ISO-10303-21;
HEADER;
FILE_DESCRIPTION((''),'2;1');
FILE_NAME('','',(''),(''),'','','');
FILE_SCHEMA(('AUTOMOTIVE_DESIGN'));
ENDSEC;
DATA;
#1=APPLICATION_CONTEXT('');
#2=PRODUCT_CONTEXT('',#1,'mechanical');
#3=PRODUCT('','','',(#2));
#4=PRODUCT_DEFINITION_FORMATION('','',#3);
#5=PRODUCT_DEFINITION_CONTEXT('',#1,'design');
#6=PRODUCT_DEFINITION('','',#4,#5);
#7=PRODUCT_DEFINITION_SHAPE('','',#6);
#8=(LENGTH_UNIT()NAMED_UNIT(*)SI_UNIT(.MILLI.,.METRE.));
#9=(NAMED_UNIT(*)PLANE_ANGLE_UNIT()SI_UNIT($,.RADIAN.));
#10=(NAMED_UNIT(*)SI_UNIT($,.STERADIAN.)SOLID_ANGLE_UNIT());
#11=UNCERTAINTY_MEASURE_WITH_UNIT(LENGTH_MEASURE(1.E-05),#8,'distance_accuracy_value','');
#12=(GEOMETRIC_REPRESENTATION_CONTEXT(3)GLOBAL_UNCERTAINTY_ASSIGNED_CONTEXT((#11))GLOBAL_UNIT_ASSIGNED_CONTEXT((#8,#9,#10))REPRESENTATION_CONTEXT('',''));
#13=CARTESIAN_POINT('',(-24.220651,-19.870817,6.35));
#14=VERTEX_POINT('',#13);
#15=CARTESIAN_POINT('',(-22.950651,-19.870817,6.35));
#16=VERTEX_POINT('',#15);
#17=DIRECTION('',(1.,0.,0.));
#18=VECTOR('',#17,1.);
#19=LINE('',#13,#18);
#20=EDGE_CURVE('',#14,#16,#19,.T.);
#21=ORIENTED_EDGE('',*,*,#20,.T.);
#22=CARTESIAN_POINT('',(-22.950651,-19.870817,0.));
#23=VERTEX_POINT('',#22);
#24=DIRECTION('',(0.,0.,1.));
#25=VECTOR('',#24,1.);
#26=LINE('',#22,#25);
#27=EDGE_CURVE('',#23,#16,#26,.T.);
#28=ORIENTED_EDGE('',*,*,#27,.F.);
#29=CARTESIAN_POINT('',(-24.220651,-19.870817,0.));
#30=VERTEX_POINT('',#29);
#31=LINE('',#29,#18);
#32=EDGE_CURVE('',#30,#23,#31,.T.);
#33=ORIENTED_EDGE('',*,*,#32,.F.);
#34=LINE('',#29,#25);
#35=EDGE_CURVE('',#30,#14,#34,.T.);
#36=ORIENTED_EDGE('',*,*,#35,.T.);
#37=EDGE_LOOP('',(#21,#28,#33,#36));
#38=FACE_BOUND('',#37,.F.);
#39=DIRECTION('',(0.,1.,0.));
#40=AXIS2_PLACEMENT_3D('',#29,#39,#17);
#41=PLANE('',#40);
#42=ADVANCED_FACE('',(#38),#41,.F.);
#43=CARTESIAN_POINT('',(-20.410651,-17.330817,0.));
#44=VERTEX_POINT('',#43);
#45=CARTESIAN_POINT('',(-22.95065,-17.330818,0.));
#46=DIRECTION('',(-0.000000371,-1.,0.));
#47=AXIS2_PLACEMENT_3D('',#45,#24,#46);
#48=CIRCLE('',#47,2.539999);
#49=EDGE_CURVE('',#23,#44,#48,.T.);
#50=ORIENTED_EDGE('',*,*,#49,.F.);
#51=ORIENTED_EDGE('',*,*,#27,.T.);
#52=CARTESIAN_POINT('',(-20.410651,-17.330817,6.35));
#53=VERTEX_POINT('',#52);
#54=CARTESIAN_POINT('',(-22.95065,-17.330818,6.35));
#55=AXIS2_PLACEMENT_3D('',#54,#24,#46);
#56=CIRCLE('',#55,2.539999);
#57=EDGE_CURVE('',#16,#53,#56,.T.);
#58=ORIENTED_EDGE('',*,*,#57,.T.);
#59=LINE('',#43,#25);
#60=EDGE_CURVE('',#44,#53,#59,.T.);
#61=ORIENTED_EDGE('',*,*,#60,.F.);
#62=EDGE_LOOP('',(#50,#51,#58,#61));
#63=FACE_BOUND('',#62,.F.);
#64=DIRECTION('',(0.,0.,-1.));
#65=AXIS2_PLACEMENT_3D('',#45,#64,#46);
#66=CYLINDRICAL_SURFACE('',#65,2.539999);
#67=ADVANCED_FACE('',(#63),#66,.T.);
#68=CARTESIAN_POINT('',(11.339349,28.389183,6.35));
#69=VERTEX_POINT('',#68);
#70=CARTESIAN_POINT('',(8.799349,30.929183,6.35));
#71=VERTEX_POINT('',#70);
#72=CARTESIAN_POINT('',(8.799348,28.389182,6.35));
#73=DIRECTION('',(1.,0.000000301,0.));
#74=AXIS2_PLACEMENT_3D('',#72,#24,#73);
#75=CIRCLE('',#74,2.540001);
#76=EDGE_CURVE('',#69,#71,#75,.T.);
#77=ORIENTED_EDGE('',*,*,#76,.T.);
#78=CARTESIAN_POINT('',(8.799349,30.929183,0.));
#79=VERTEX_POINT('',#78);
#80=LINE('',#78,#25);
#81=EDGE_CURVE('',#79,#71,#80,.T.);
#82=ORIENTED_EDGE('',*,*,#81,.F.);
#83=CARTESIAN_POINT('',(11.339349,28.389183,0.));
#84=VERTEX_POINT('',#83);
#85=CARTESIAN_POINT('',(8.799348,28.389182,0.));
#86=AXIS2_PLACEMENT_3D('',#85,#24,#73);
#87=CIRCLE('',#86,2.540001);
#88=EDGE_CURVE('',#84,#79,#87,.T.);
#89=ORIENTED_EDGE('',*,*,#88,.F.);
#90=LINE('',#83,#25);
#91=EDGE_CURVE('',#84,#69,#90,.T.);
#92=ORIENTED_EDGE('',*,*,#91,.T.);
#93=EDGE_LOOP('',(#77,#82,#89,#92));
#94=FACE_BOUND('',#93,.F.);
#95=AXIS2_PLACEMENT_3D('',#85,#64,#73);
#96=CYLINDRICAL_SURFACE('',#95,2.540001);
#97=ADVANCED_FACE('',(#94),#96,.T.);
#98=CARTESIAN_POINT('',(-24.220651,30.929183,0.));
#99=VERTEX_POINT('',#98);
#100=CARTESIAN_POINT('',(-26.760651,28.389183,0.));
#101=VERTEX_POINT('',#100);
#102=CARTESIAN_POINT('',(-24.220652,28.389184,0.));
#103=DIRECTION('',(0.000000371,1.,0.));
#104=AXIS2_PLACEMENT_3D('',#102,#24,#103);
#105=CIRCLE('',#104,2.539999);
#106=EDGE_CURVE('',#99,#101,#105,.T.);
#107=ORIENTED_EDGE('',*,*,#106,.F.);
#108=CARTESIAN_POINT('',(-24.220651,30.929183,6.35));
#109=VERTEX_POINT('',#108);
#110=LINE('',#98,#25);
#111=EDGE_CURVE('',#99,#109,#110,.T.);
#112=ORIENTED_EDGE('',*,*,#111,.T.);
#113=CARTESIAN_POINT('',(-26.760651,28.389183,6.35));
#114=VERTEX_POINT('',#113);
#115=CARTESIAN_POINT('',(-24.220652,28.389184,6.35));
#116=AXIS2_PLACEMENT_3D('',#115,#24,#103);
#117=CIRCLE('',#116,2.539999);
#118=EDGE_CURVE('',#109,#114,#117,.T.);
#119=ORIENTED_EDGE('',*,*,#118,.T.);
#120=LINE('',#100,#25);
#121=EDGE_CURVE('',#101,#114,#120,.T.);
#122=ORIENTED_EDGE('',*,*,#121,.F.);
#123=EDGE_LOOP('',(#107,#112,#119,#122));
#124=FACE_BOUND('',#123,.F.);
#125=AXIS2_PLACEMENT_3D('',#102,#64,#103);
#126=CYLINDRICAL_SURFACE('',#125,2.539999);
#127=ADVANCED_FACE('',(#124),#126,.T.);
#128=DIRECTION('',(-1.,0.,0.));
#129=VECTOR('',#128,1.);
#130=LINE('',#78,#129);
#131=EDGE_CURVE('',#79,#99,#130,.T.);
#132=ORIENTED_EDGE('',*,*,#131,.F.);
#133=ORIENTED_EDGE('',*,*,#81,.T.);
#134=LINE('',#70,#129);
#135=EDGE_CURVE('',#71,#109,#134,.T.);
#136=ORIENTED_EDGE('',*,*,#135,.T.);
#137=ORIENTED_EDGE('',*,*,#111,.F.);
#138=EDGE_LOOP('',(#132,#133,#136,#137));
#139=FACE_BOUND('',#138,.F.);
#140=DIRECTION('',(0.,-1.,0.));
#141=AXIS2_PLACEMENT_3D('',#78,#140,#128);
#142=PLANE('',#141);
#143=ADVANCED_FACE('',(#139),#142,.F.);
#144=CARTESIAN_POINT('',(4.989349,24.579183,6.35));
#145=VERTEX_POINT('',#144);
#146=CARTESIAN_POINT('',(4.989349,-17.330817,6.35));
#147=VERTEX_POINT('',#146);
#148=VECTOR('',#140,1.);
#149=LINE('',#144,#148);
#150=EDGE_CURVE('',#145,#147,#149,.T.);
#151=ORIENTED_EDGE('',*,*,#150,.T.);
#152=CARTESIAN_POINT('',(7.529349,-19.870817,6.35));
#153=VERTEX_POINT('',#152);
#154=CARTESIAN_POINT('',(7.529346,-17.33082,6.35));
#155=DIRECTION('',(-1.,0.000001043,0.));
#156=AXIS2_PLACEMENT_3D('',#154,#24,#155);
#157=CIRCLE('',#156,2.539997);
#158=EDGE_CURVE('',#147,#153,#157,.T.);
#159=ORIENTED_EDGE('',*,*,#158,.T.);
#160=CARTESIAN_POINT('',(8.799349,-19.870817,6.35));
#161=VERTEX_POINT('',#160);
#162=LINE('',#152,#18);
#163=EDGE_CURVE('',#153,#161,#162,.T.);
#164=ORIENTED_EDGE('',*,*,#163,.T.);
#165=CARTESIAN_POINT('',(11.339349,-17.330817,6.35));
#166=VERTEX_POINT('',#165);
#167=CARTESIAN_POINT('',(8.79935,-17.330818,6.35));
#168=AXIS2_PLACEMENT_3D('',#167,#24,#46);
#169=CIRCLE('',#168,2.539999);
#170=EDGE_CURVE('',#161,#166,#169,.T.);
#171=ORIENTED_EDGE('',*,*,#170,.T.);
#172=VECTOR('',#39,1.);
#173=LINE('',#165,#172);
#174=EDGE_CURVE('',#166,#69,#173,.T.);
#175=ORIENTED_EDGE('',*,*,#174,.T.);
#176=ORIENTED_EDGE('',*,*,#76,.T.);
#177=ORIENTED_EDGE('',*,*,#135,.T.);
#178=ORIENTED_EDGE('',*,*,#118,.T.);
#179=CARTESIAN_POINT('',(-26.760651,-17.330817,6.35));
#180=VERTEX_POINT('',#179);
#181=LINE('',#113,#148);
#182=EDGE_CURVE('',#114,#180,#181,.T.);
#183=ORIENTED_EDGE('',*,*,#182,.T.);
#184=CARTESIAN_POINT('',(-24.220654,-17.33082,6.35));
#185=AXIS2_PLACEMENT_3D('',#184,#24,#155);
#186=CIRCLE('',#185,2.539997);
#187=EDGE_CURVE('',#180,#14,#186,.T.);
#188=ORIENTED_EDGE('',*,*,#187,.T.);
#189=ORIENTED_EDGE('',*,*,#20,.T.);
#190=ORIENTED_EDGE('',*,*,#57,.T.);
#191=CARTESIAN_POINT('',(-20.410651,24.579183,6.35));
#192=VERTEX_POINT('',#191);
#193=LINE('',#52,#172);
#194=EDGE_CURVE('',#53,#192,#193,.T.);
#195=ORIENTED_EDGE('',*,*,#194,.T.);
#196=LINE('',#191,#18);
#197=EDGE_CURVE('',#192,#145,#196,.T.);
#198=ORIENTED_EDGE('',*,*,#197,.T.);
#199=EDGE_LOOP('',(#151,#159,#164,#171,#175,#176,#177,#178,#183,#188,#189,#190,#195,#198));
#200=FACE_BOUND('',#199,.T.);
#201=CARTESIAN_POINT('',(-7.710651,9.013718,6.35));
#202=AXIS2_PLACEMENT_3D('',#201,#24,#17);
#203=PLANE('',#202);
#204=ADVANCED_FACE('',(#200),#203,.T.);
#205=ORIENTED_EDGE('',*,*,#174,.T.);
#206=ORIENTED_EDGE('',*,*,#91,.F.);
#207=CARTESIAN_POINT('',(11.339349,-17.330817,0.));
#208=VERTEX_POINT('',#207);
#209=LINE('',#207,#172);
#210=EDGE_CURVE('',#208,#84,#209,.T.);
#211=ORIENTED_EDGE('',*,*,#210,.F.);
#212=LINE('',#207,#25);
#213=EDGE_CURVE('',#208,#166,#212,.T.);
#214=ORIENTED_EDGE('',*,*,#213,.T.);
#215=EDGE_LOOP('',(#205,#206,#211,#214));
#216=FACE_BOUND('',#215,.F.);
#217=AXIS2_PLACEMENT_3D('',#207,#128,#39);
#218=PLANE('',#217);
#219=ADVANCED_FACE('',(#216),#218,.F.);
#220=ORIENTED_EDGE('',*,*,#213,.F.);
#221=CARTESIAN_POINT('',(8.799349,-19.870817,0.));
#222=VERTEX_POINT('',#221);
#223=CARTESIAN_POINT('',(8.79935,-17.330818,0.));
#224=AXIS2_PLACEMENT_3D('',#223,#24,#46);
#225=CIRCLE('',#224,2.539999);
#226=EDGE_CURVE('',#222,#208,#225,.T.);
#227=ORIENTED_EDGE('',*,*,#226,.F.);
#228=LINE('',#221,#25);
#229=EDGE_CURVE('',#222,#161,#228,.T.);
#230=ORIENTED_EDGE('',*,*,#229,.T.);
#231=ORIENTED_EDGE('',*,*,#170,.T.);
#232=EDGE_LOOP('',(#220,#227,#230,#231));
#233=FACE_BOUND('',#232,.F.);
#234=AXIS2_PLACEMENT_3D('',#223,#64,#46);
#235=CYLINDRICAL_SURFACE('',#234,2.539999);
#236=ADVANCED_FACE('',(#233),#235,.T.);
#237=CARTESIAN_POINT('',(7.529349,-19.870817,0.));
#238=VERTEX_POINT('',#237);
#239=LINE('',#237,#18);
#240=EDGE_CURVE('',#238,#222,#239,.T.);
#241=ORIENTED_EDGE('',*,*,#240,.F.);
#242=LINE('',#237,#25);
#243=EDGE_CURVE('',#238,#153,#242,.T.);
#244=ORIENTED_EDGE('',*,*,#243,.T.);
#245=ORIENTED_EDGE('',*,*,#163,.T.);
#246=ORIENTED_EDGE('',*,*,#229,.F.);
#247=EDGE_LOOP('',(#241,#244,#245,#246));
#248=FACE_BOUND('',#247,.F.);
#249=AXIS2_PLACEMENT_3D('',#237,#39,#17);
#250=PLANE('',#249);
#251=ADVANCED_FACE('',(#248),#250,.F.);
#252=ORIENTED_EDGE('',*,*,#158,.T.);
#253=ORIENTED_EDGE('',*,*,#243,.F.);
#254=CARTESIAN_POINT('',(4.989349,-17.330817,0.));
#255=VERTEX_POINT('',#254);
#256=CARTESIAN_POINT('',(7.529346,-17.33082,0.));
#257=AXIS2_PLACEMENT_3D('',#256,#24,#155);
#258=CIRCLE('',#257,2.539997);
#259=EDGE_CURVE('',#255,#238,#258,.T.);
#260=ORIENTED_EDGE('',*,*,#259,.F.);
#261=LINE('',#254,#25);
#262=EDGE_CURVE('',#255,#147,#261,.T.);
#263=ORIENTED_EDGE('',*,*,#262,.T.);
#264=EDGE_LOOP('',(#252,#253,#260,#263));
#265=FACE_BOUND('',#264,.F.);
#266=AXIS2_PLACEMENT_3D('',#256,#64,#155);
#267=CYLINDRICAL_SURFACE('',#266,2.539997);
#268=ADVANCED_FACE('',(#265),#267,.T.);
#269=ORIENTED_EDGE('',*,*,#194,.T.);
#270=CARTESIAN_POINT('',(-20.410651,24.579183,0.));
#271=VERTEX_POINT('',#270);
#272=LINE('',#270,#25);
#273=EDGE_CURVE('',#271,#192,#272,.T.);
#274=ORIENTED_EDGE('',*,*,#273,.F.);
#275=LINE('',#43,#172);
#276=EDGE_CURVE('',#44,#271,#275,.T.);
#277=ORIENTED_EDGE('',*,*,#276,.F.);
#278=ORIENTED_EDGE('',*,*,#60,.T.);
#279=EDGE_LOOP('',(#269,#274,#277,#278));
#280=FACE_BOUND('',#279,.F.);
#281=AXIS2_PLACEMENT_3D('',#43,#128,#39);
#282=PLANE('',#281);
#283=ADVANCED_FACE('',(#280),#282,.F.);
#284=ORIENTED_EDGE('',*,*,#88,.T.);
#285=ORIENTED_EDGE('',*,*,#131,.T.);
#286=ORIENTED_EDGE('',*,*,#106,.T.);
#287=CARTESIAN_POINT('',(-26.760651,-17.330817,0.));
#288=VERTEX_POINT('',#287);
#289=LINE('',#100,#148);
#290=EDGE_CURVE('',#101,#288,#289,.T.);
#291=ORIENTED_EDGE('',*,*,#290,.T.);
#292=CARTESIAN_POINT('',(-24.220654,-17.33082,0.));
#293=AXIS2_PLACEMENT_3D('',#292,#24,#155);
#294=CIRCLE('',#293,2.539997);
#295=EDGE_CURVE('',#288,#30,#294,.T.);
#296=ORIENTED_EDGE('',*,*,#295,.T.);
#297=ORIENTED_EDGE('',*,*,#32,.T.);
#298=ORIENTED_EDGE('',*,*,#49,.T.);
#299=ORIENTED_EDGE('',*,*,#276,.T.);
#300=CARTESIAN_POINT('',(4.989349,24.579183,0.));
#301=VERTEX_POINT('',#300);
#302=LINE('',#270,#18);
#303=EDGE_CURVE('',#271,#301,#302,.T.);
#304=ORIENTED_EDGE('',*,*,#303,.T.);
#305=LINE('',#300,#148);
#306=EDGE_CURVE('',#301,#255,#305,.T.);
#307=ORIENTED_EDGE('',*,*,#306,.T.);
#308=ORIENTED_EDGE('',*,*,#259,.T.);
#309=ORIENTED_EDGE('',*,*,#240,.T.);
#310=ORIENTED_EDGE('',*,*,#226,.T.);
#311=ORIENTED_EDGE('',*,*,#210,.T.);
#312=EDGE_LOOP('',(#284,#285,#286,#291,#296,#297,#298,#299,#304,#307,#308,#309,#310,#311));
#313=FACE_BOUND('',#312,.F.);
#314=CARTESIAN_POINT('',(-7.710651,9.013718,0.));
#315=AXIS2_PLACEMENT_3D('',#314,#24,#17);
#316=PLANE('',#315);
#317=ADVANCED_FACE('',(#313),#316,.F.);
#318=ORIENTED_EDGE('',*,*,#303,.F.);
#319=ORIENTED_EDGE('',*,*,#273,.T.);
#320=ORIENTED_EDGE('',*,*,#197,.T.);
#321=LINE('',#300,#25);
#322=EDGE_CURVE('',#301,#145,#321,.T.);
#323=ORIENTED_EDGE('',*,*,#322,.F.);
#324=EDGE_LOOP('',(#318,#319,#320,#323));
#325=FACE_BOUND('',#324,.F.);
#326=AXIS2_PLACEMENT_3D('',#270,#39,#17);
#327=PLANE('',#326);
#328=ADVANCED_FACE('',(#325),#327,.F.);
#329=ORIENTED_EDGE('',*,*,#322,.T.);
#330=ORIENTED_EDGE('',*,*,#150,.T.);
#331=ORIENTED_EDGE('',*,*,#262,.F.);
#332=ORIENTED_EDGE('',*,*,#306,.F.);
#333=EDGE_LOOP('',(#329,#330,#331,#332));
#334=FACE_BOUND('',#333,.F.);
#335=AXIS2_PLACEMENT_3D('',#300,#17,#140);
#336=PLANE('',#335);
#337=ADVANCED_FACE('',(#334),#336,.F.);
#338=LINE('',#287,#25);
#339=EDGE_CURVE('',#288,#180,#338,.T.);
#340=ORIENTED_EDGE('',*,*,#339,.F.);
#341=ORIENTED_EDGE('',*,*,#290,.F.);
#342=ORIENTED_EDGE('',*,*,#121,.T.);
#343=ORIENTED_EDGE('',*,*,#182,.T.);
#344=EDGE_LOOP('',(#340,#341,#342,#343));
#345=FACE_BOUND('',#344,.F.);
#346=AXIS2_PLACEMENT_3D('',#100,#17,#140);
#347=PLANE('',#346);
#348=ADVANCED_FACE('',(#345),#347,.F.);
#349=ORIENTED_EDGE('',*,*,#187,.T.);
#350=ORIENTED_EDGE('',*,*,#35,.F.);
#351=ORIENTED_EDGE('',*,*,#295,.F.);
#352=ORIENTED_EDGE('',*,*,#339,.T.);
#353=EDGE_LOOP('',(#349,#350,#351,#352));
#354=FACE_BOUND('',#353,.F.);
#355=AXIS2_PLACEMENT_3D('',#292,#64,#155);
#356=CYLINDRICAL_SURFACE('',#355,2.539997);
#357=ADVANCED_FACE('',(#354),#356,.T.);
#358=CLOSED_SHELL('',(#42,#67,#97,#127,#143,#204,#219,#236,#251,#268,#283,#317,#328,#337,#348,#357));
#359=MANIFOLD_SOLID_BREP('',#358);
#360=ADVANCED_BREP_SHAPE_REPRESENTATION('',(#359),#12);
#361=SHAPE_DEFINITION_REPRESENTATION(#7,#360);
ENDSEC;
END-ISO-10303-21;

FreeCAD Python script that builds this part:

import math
import FreeCAD as App
import Part
import Sketcher
from FreeCAD import Vector
Q = App.Units.Quantity

doc = App.newDocument("Part")
params = doc.addObject("Spreadsheet::Sheet", "Params")
for row, (alias, value) in enumerate([
    ("sketch1_radius", "0.0999999 in"),
    ("sketch1_width", "1 in"),
    ("sketch1_width2", "1.3 in"),
    ("sketch1_height", "1.8 in"),
    ("sketch1_height2", "1.65 in"),
    ("pad1_length", "0.25 in"),
], start=1):
    params.set(f"A{row}", alias)
    params.set(f"B{row}", "=" + value)
    params.setAlias(f"B{row}", alias)

body = doc.addObject("PartDesign::Body", "Body")

# Sketch on XY plane
sketch1 = body.newObject("Sketcher::SketchObject", "Sketch")
sketch1.AttachmentSupport = (doc.getObject("XY_Plane"), [""])
sketch1.MapMode = "FlatFace"
sketch1.addGeometry([
    Part.LineSegment(Vector(-20.410651, -17.330817, 0), Vector(-20.410651, 24.579183, 0)),  # 0
    Part.LineSegment(Vector(-20.410651, 24.579183, 0), Vector(4.989349, 24.579183, 0)),  # 1
    Part.LineSegment(Vector(4.989349, 24.579183, 0), Vector(4.989349, -17.330817, 0)),  # 2
    Part.ArcOfCircle(Part.Circle(Vector(7.529346, -17.33082, 0), Vector(0, 0, 1), 2.539997), math.radians(179.99994), math.radians(270.00006)),  # 3
    Part.LineSegment(Vector(7.529349, -19.870817, 0), Vector(8.799349, -19.870817, 0)),  # 4
    Part.ArcOfCircle(Part.Circle(Vector(8.79935, -17.330818, 0), Vector(0, 0, 1), 2.539999), math.radians(-90.000021), math.radians(0.000021)),  # 5
    Part.LineSegment(Vector(11.339349, -17.330817, 0), Vector(11.339349, 28.389183, 0)),  # 6
    Part.ArcOfCircle(Part.Circle(Vector(8.799348, 28.389182, 0), Vector(0, 0, 1), 2.540001), math.radians(0.000017), math.radians(89.999983)),  # 7
    Part.LineSegment(Vector(8.799349, 30.929183, 0), Vector(-24.220651, 30.929183, 0)),  # 8
    Part.ArcOfCircle(Part.Circle(Vector(-24.220652, 28.389184, 0), Vector(0, 0, 1), 2.539999), math.radians(89.999979), math.radians(180.000021)),  # 9
    Part.LineSegment(Vector(-26.760651, 28.389183, 0), Vector(-26.760651, -17.330817, 0)),  # 10
    Part.ArcOfCircle(Part.Circle(Vector(-24.220654, -17.33082, 0), Vector(0, 0, 1), 2.539997), math.radians(179.99994), math.radians(270.00006)),  # 11
    Part.LineSegment(Vector(-24.220651, -19.870817, 0), Vector(-22.950651, -19.870817, 0)),  # 12
    Part.ArcOfCircle(Part.Circle(Vector(-22.95065, -17.330818, 0), Vector(0, 0, 1), 2.539999), math.radians(-90.000021), math.radians(0.000021)),  # 13
], False)
sketch1.addConstraint([
    Sketcher.Constraint("Coincident", 0, 2, 1, 1),
    Sketcher.Constraint("Coincident", 1, 2, 2, 1),
    Sketcher.Constraint("Tangent", 2, 2, 3, 1),
    Sketcher.Constraint("Tangent", 3, 2, 4, 1),
    Sketcher.Constraint("Tangent", 4, 2, 5, 1),
    Sketcher.Constraint("Tangent", 5, 2, 6, 1),
    Sketcher.Constraint("Tangent", 6, 2, 7, 1),
    Sketcher.Constraint("Tangent", 7, 2, 8, 1),
    Sketcher.Constraint("Tangent", 8, 2, 9, 1),
    Sketcher.Constraint("Tangent", 9, 2, 10, 1),
    Sketcher.Constraint("Tangent", 10, 2, 11, 1),
    Sketcher.Constraint("Tangent", 11, 2, 12, 1),
    Sketcher.Constraint("Tangent", 12, 2, 13, 1),
    Sketcher.Constraint("Tangent", 13, 2, 0, 1),
    Sketcher.Constraint("Vertical", 0),
    Sketcher.Constraint("Horizontal", 1),
    Sketcher.Constraint("Vertical", 2),
    Sketcher.Constraint("Horizontal", 4),
    Sketcher.Constraint("Vertical", 6),
    Sketcher.Constraint("Horizontal", 8),
    Sketcher.Constraint("Vertical", 10),
    Sketcher.Constraint("Horizontal", 12),
    Sketcher.Constraint("Equal", 3, 5),
    Sketcher.Constraint("Equal", 5, 7),
    Sketcher.Constraint("Equal", 7, 9),
    Sketcher.Constraint("Equal", 9, 11),
    Sketcher.Constraint("Equal", 11, 13),
    Sketcher.Constraint("Horizontal", 5, 3, 11, 3),
    Sketcher.Constraint("Equal", 4, 12),
    Sketcher.Constraint("Radius", 3, Q("0.0999999 in")),
    Sketcher.Constraint("DistanceX", 1, 1, 1, 2, Q("1 in")),
    Sketcher.Constraint("DistanceX", 8, 2, 8, 1, Q("1.3 in")),
    Sketcher.Constraint("DistanceY", 6, 1, 6, 2, Q("1.8 in")),
    Sketcher.Constraint("DistanceY", 0, 1, 0, 2, Q("1.65 in")),
    Sketcher.Constraint("DistanceY", 3, 3, -1, 1, 17.33082),
    Sketcher.Constraint("DistanceX", -1, 1, 5, 3, 8.79935),
])
sketch1.setExpression("Constraints[29]", "Params.sketch1_radius")
sketch1.setExpression("Constraints[30]", "Params.sketch1_width")
sketch1.setExpression("Constraints[31]", "Params.sketch1_width2")
sketch1.setExpression("Constraints[32]", "Params.sketch1_height")
sketch1.setExpression("Constraints[33]", "Params.sketch1_height2")
pad1 = body.newObject("PartDesign::Pad", "Pad")
pad1.Profile = sketch1
pad1.setExpression("Length", "Params.pad1_length")

doc.recompute()
